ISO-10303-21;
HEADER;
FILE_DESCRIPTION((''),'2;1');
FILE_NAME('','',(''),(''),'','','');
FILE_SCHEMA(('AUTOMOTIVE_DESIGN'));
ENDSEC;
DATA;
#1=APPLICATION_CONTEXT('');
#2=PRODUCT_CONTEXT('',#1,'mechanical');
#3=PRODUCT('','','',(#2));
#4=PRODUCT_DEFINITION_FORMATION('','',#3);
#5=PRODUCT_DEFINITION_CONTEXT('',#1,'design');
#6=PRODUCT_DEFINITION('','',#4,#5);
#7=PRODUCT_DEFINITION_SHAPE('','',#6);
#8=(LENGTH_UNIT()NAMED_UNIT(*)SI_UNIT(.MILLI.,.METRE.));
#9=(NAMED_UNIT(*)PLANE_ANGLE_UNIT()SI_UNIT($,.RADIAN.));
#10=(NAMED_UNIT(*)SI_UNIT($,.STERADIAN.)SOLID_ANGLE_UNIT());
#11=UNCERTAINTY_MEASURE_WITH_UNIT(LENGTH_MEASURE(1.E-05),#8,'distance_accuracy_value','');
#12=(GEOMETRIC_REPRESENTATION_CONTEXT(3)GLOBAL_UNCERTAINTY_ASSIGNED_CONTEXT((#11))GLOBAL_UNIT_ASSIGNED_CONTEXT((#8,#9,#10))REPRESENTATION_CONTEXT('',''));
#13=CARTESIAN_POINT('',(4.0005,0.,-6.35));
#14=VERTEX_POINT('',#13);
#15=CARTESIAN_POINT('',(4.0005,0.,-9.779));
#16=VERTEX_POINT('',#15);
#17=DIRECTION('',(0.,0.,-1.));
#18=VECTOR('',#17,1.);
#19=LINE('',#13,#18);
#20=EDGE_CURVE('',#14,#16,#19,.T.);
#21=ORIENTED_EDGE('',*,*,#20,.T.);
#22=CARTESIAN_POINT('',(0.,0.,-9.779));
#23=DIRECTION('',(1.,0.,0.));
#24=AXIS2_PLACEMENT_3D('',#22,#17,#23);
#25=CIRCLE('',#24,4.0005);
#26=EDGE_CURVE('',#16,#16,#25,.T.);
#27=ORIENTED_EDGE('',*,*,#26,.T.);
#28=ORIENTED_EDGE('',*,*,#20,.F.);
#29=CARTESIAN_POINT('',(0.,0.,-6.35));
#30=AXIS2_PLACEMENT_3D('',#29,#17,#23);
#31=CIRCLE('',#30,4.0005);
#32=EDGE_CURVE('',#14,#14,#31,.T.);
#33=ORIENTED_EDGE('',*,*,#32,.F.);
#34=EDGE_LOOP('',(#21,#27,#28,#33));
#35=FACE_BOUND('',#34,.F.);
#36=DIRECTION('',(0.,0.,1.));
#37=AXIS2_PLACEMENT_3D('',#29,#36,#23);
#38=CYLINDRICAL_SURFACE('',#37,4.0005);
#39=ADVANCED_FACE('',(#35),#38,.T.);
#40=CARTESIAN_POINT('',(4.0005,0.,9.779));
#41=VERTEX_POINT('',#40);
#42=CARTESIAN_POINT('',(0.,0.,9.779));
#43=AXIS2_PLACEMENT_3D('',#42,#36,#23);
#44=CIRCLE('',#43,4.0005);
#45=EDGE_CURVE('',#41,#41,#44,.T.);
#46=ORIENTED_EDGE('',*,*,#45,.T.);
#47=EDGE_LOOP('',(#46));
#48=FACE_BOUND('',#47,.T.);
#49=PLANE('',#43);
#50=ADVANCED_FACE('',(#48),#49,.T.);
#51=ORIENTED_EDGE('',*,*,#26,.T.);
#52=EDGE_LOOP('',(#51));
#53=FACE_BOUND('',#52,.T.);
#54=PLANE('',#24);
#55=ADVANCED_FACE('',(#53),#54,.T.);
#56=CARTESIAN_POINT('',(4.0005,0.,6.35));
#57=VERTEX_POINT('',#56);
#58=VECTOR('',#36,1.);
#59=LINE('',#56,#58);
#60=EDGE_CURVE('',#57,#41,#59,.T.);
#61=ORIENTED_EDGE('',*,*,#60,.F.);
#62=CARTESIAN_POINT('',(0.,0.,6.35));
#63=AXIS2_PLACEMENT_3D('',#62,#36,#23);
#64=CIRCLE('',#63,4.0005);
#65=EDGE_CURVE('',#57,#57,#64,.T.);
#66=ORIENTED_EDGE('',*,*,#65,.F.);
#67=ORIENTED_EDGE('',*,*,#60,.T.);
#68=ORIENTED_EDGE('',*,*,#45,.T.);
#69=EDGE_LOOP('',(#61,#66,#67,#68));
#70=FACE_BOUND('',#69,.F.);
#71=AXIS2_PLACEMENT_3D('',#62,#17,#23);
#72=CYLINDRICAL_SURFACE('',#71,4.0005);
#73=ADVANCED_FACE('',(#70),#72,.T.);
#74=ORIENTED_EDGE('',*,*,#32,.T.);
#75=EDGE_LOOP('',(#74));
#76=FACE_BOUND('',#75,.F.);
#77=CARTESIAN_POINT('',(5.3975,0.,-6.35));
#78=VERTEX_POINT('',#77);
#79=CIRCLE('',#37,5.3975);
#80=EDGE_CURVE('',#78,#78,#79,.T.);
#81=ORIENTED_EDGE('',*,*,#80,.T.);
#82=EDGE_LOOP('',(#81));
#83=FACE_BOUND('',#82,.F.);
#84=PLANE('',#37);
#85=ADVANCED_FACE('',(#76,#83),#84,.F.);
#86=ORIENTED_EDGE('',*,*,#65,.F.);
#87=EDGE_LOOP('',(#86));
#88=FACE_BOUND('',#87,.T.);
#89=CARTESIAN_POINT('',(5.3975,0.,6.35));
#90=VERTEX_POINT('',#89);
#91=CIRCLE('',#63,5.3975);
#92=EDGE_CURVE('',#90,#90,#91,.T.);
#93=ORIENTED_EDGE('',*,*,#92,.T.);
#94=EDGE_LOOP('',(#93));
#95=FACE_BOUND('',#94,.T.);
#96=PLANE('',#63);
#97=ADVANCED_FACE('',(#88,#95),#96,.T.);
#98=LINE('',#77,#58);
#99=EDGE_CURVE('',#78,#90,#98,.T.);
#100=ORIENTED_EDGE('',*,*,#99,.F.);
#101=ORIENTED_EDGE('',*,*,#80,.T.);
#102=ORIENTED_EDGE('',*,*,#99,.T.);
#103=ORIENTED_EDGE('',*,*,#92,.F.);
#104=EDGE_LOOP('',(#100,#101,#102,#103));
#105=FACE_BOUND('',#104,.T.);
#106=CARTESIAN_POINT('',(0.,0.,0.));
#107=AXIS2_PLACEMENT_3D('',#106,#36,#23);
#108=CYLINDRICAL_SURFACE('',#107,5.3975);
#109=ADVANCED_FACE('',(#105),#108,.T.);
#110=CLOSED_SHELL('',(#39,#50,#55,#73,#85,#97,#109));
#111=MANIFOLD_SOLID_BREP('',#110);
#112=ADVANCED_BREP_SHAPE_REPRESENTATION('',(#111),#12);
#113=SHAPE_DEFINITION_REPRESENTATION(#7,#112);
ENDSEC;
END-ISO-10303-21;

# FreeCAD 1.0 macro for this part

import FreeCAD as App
import Part
import Sketcher
from FreeCAD import Vector
Q = App.Units.Quantity

doc = App.newDocument("Part")
body = doc.addObject("PartDesign::Body", "Body")

sketch1 = body.newObject("Sketcher::SketchObject", "Sketch")
sketch1.AttachmentSupport = (doc.getObject("XY_Plane"), [""])
sketch1.MapMode = "FlatFace"
sketch1.addGeometry(Part.Circle(Vector(0, 0, 0), Vector(0, 0, 1), 5), False)
sketch1.addConstraint([
    Sketcher.Constraint("Coincident", 0, 3, -1, 1),
    Sketcher.Constraint("Diameter", 0, Q("0.425 in")),
])
pad1 = body.newObject("PartDesign::Pad", "Pad")
pad1.Profile = sketch1
pad1.Length = Q("0.5 in")
pad1.Midplane = True

sketch2 = body.newObject("Sketcher::SketchObject", "Sketch001")
sketch2.AttachmentSupport = (doc.getObject("XY_Plane"), [""])
sketch2.MapMode = "FlatFace"
sketch2.AttachmentOffset = App.Placement(Vector(0, 0, -0.25 * 25.4), App.Rotation())
sketch2.addGeometry(Part.Circle(Vector(0, 0, 0), Vector(0, 0, 1), 4), False)
sketch2.addConstraint([
    Sketcher.Constraint("Coincident", 0, 3, -1, 1),
    Sketcher.Constraint("Diameter", 0, Q("0.315 in")),
])
pad2 = body.newObject("PartDesign::Pad", "Pad001")
pad2.Profile = sketch2
pad2.Length = Q("0.135 in")
pad2.Reversed = True

sketch3 = body.newObject("Sketcher::SketchObject", "Sketch002")
sketch3.AttachmentSupport = (doc.getObject("XY_Plane"), [""])
sketch3.MapMode = "FlatFace"
sketch3.AttachmentOffset = App.Placement(Vector(0, 0, 0.25 * 25.4), App.Rotation())
sketch3.addGeometry(Part.Circle(Vector(0, 0, 0), Vector(0, 0, 1), 4), False)
sketch3.addConstraint([
    Sketcher.Constraint("Coincident", 0, 3, -1, 1),
    Sketcher.Constraint("Diameter", 0, Q("0.315 in")),
])
pad3 = body.newObject("PartDesign::Pad", "Pad002")
pad3.Profile = sketch3
pad3.Length = Q("0.135 in")

doc.recompute()
